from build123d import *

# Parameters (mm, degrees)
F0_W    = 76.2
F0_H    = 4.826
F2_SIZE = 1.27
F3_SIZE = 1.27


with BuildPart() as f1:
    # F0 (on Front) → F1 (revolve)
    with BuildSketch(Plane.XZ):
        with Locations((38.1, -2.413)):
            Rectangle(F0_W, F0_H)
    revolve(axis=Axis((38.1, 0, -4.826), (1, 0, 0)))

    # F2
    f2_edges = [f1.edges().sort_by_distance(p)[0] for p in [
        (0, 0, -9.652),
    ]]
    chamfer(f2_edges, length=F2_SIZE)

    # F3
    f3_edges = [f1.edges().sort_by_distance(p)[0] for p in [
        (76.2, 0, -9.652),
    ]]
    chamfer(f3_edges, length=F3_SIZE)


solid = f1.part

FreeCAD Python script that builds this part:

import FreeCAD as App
import Part
import Sketcher
Q = App.Units.Quantity


def edges_at(feature, points):
    """Names of the edges that pass closest to the given points."""
    edges = feature.Shape.Edges
    near = lambda p: min(range(len(edges)), key=lambda i: edges[i].distToShape(Part.Vertex(*p))[0])
    return sorted({f"Edge{near(p) + 1}" for p in points})

doc = App.newDocument("Part")
params = doc.addObject("Spreadsheet::Sheet", "Params")
for row, (alias, value) in enumerate([
    ("sketch1_width", "3 in"),
    ("sketch1_height", "0.19 in"),
    ("revolution_angle", "360 deg"),
    ("chamfer_size", "0.05 in"),
    ("chamfer2_size", "0.05 in"),
], start=1):
    params.set(f"A{row}", alias)
    params.set(f"B{row}", "=" + value)
    params.setAlias(f"B{row}", alias)

body = doc.addObject("PartDesign::Body", "Body")

sketch1 = body.newObject("Sketcher::SketchObject", "Sketch")
sketch1.AttachmentSupport = (doc.getObject("XZ_Plane"), [""])
sketch1.MapMode = "FlatFace"
sketch1.addGeometry([
    Part.LineSegment(App.Vector(0, 0, 0), App.Vector(0, -4.8, 0)),
    Part.LineSegment(App.Vector(0, -4.8, 0), App.Vector(76.2, -4.8, 0)),
    Part.LineSegment(App.Vector(76.2, -4.8, 0), App.Vector(76.2, 0, 0)),
    Part.LineSegment(App.Vector(76.2, 0, 0), App.Vector(0, 0, 0)),
], False)
sketch1.addGeometry(Part.LineSegment(App.Vector(0, -4.8, 0), App.Vector(76.2, -4.8, 0)), True)
sketch1.addConstraint([
    Sketcher.Constraint("Coincident", 0, 2, 1, 1),
    Sketcher.Constraint("Coincident", 1, 2, 2, 1),
    Sketcher.Constraint("Coincident", 2, 2, 3, 1),
    Sketcher.Constraint("Coincident", 3, 2, 0, 1),
    Sketcher.Constraint("Vertical", 0),
    Sketcher.Constraint("Horizontal", 1),
    Sketcher.Constraint("Vertical", 2),
    Sketcher.Constraint("Horizontal", 3),
    Sketcher.Constraint("Horizontal", 4),
    Sketcher.Constraint("Coincident", 3, 2, -1, 1),
    Sketcher.Constraint("Coincident", 4, 1, 0, 2),
    Sketcher.Constraint("Vertical", 2, 2, 4, 2),
    Sketcher.Constraint("DistanceX", 1, 1, 1, 2, Q("3 in")),
    Sketcher.Constraint("DistanceY", 0, 2, 0, 1, Q("0.19 in")),
])
sketch1.setExpression("Constraints[12]", "Params.sketch1_width")
sketch1.setExpression("Constraints[13]", "Params.sketch1_height")
revolution = body.newObject("PartDesign::Revolution", "Revolution")
revolution.Profile = sketch1
revolution.ReferenceAxis = (sketch1, ["Axis0"])
revolution.setExpression("Angle", "Params.revolution_angle")
doc.recompute()

chamfer = body.newObject("PartDesign::Chamfer", "Chamfer")
chamfer.Base = (revolution, edges_at(revolution, [(0, 0, -9.652)]))
chamfer.setExpression("Size", "Params.chamfer_size")
doc.recompute()

chamfer2 = body.newObject("PartDesign::Chamfer", "Chamfer001")
chamfer2.Base = (chamfer, edges_at(chamfer, [(76.2, 0, -9.652)]))
chamfer2.setExpression("Size", "Params.chamfer2_size")

doc.recompute()
